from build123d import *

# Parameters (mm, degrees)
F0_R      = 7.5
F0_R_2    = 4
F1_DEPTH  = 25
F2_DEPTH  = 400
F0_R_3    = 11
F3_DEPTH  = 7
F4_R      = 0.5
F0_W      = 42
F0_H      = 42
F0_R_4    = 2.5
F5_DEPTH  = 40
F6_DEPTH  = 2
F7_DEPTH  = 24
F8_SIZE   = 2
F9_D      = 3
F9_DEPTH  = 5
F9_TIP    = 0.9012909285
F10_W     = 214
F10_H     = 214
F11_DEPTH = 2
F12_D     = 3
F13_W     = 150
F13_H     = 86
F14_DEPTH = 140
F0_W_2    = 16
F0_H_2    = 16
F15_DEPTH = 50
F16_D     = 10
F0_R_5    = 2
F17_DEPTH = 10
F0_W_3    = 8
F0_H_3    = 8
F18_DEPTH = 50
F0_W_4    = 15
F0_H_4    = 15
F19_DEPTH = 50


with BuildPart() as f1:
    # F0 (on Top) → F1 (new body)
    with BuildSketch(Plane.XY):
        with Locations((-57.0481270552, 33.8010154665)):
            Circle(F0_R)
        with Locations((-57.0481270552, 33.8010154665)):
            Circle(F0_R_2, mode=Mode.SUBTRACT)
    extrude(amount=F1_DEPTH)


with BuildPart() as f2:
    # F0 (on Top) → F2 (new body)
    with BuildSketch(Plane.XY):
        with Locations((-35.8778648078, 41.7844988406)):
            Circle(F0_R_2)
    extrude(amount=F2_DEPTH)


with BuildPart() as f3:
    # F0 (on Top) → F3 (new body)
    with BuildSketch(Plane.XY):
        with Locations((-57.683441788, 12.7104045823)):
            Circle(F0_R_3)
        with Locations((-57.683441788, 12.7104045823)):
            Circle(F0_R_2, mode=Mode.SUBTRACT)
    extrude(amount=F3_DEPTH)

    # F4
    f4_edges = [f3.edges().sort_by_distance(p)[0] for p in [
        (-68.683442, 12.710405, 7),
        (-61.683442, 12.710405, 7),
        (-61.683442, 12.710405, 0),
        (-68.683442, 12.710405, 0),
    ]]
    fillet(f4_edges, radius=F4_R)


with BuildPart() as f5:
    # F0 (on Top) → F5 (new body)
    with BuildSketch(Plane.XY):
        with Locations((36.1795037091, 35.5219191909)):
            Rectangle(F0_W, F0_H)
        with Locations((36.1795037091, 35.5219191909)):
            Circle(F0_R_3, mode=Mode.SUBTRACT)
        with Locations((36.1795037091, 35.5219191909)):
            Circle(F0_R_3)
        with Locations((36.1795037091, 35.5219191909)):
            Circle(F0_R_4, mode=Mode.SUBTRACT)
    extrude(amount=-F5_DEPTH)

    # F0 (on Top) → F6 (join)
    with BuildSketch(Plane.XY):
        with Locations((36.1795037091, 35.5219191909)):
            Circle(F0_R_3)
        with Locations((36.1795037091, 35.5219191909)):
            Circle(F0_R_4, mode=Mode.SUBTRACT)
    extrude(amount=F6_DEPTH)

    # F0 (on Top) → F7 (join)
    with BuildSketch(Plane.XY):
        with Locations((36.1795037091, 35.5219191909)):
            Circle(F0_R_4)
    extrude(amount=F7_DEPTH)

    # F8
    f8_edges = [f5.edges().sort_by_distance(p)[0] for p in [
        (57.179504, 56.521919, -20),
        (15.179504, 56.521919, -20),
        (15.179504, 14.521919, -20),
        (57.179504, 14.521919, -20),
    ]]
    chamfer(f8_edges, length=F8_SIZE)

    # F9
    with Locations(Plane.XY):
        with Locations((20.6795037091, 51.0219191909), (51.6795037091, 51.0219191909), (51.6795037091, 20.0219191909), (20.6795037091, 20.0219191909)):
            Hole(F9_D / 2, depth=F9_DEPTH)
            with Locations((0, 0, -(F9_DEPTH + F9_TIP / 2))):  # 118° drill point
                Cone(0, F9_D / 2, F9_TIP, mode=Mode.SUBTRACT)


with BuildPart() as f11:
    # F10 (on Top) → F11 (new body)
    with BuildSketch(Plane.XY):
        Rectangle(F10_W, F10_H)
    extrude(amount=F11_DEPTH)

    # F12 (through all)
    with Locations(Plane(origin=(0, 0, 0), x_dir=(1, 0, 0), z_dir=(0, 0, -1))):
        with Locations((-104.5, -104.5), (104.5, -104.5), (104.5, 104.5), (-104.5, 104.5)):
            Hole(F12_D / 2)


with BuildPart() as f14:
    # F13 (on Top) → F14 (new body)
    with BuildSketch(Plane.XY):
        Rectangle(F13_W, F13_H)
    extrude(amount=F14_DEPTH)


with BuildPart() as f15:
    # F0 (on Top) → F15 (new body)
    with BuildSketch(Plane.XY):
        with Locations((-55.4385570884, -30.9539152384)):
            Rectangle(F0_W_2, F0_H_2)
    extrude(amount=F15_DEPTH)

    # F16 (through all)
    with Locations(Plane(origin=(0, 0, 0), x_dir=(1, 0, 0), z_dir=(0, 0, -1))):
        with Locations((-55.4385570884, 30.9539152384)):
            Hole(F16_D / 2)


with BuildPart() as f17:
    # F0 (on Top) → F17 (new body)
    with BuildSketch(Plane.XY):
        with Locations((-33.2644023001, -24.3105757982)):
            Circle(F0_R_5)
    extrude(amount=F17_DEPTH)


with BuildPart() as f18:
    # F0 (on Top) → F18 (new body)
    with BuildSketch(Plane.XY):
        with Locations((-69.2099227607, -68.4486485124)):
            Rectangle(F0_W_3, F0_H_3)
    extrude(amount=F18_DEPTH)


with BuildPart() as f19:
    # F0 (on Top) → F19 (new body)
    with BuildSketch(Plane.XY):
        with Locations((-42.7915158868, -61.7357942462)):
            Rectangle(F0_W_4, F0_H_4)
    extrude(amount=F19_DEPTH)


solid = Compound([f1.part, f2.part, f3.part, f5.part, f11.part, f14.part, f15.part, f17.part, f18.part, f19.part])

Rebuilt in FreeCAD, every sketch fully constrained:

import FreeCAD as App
import Part
import Sketcher
from FreeCAD import Vector


def edges_at(feature, points):
    """Names of the edges that pass closest to the given points."""
    edges = feature.Shape.Edges
    near = lambda p: min(range(len(edges)), key=lambda i: edges[i].distToShape(Part.Vertex(*p))[0])
    return sorted({f"Edge{near(p) + 1}" for p in points})

doc = App.newDocument("Part")
body = doc.addObject("PartDesign::Body", "Body")

# Sketch on XY plane
sketch1 = doc.addObject("Sketcher::SketchObject", "Sketch")
body.addObject(sketch1)
sketch1.AttachmentSupport = (doc.XY_Plane, [""])
sketch1.MapMode = "FlatFace"
sketch1.addGeometry([
    Part.Circle(Vector(-57.048127, 33.801015, 0), Vector(0, 0, 1), 7.5),
    Part.Circle(Vector(-57.048127, 33.801015, 0), Vector(0, 0, 1), 4),
], False)
sketch1.addConstraint([
    Sketcher.Constraint("Coincident", 1, 3, 0, 3),
    Sketcher.Constraint("Diameter", 0, 15.0),
    Sketcher.Constraint("Diameter", 1, 8.0),
    Sketcher.Constraint("DistanceX", 0, 3, -1, 1, 57.048127),
    Sketcher.Constraint("DistanceY", -1, 1, 0, 3, 33.801015),
])
pad1 = doc.addObject("PartDesign::Pad", "Pad")
body.addObject(pad1)
pad1.Profile = sketch1
pad1.Length = 25
body2 = doc.addObject("PartDesign::Body", "Body001")

# Sketch on XY plane
sketch2 = doc.addObject("Sketcher::SketchObject", "Sketch001")
body2.addObject(sketch2)
sketch2.AttachmentSupport = (doc.getObject("XY_Plane001"), [""])
sketch2.MapMode = "FlatFace"
sketch2.addGeometry(Part.Circle(Vector(-35.877865, 41.784499, 0), Vector(0, 0, 1), 4), False)
sketch2.addConstraint([
    Sketcher.Constraint("Diameter", 0, 8.0),
    Sketcher.Constraint("DistanceY", -1, 1, 0, 3, 41.784499),
    Sketcher.Constraint("DistanceX", 0, 3, -1, 1, 35.877865),
])
pad2 = doc.addObject("PartDesign::Pad", "Pad001")
body2.addObject(pad2)
pad2.Profile = sketch2
pad2.Length = 400
body3 = doc.addObject("PartDesign::Body", "Body002")

# Sketch on XY plane
sketch3 = doc.addObject("Sketcher::SketchObject", "Sketch002")
body3.addObject(sketch3)
sketch3.AttachmentSupport = (doc.getObject("XY_Plane002"), [""])
sketch3.MapMode = "FlatFace"
sketch3.addGeometry([
    Part.Circle(Vector(-57.683442, 12.710405, 0), Vector(0, 0, 1), 11),
    Part.Circle(Vector(-57.683442, 12.710405, 0), Vector(0, 0, 1), 4),
], False)
sketch3.addConstraint([
    Sketcher.Constraint("Coincident", 1, 3, 0, 3),
    Sketcher.Constraint("Diameter", 0, 22.0),
    Sketcher.Constraint("Diameter", 1, 8.0),
    Sketcher.Constraint("DistanceX", 0, 3, -1, 1, 57.683442),
    Sketcher.Constraint("DistanceY", -1, 1, 0, 3, 12.710405),
])
pad3 = doc.addObject("PartDesign::Pad", "Pad002")
body3.addObject(pad3)
pad3.Profile = sketch3
pad3.Length = 7
doc.recompute()

fillet = doc.addObject("PartDesign::Fillet", "Fillet")
body3.addObject(fillet)
fillet.Base = (pad3, edges_at(pad3, [
    (-68.683, 12.71, 7),
    (-61.683, 12.71, 7),
    (-61.683, 12.71, 0),
    (-68.683, 12.71, 0),
]))
fillet.Radius = 0.5
body4 = doc.addObject("PartDesign::Body", "Body003")

# Sketch on XY plane
sketch4 = doc.addObject("Sketcher::SketchObject", "Sketch003")
body4.addObject(sketch4)
sketch4.AttachmentSupport = (doc.getObject("XY_Plane003"), [""])
sketch4.MapMode = "FlatFace"
sketch4.addGeometry([
    Part.LineSegment(Vector(15.179504, 56.521919, 0), Vector(15.179504, 14.521919, 0)),  # 0
    Part.LineSegment(Vector(15.179504, 14.521919, 0), Vector(57.179504, 14.521919, 0)),  # 1
    Part.LineSegment(Vector(57.179504, 14.521919, 0), Vector(57.179504, 56.521919, 0)),  # 2
    Part.LineSegment(Vector(57.179504, 56.521919, 0), Vector(15.179504, 56.521919, 0)),  # 3
    Part.Circle(Vector(36.179504, 35.521919, 0), Vector(0, 0, 1), 2.5),  # 4
], False)
sketch4.addConstraint([
    Sketcher.Constraint("Coincident", 0, 2, 1, 1),
    Sketcher.Constraint("Coincident", 1, 2, 2, 1),
    Sketcher.Constraint("Coincident", 2, 2, 3, 1),
    Sketcher.Constraint("Coincident", 3, 2, 0, 1),
    Sketcher.Constraint("Vertical", 0),
    Sketcher.Constraint("Horizontal", 1),
    Sketcher.Constraint("Vertical", 2),
    Sketcher.Constraint("Horizontal", 3),
    Sketcher.Constraint("Equal", 3, 0),
    Sketcher.Constraint("Diameter", 4, 5.0),
    Sketcher.Constraint("DistanceX", 1, 1, 1, 2, 42.0),
    Sketcher.Constraint("DistanceX", 0, 2, 4, 3, 21.0),
    Sketcher.Constraint("DistanceY", 0, 2, 4, 3, 21.0),
    Sketcher.Constraint("DistanceY", -1, 1, 4, 3, 35.521919),
    Sketcher.Constraint("DistanceX", -1, 1, 4, 3, 36.179504),
])
pad4 = doc.addObject("PartDesign::Pad", "Pad003")
body4.addObject(pad4)
pad4.Profile = sketch4
pad4.Length = 40
pad4.Reversed = True

# Sketch on XY plane
sketch5 = doc.addObject("Sketcher::SketchObject", "Sketch004")
body4.addObject(sketch5)
sketch5.AttachmentSupport = (doc.getObject("XY_Plane003"), [""])
sketch5.MapMode = "FlatFace"
sketch5.addGeometry([
    Part.Circle(Vector(36.179504, 35.521919, 0), Vector(0, 0, 1), 11),
    Part.Circle(Vector(36.179504, 35.521919, 0), Vector(0, 0, 1), 2.5),
], False)
sketch5.addConstraint([
    Sketcher.Constraint("Coincident", 1, 3, 0, 3),
    Sketcher.Constraint("Diameter", 0, 22.0),
    Sketcher.Constraint("Diameter", 1, 5.0),
    Sketcher.Constraint("DistanceY", -1, 1, 0, 3, 35.521919),
    Sketcher.Constraint("DistanceX", -1, 1, 0, 3, 36.179504),
])
pad5 = doc.addObject("PartDesign::Pad", "Pad004")
body4.addObject(pad5)
pad5.Profile = sketch5
pad5.Length = 2

# Sketch on XY plane
sketch6 = doc.addObject("Sketcher::SketchObject", "Sketch005")
body4.addObject(sketch6)
sketch6.AttachmentSupport = (doc.getObject("XY_Plane003"), [""])
sketch6.MapMode = "FlatFace"
sketch6.addGeometry(Part.Circle(Vector(36.179504, 35.521919, 0), Vector(0, 0, 1), 2.5), False)
sketch6.addConstraint([
    Sketcher.Constraint("Diameter", 0, 5.0),
    Sketcher.Constraint("DistanceY", -1, 1, 0, 3, 35.521919),
    Sketcher.Constraint("DistanceX", -1, 1, 0, 3, 36.179504),
])
pad6 = doc.addObject("PartDesign::Pad", "Pad005")
body4.addObject(pad6)
pad6.Profile = sketch6
pad6.Length = 24
doc.recompute()

chamfer = doc.addObject("PartDesign::Chamfer", "Chamfer")
body4.addObject(chamfer)
chamfer.Base = (pad6, edges_at(pad6, [
    (57.18, 56.522, -20),
    (15.18, 56.522, -20),
    (15.18, 14.522, -20),
    (57.18, 14.522, -20),
]))
chamfer.Size = 2

# Sketch on XY plane
sketch7 = doc.addObject("Sketcher::SketchObject", "Sketch006")
body4.addObject(sketch7)
sketch7.AttachmentSupport = (doc.getObject("XY_Plane003"), [""])
sketch7.MapMode = "FlatFace"
sketch7.addGeometry([
    Part.Circle(Vector(20.679504, 51.021919, 0), Vector(0, 0, 1), 1.5),
    Part.Circle(Vector(51.679504, 51.021919, 0), Vector(0, 0, 1), 1.5),
    Part.Circle(Vector(51.679504, 20.021919, 0), Vector(0, 0, 1), 1.5),
    Part.Circle(Vector(20.679504, 20.021919, 0), Vector(0, 0, 1), 1.5),
], False)
sketch7.addConstraint([
    Sketcher.Constraint("Equal", 0, 1),
    Sketcher.Constraint("Equal", 1, 2),
    Sketcher.Constraint("Equal", 2, 3),
    Sketcher.Constraint("Horizontal", 0, 3, 1, 3),
    Sketcher.Constraint("Horizontal", 2, 3, 3, 3),
    Sketcher.Constraint("Vertical", 1, 3, 2, 3),
    Sketcher.Constraint("Vertical", 0, 3, 3, 3),
    Sketcher.Constraint("Diameter", 0, 3.0),
    Sketcher.Constraint("DistanceX", 0, 3, 1, 3, 31.0),
    Sketcher.Constraint("DistanceY", 2, 3, 1, 3, 31.0),
    Sketcher.Constraint("DistanceY", -1, 1, 0, 3, 51.021919),
    Sketcher.Constraint("DistanceX", -1, 1, 0, 3, 20.679504),
])
doc.recompute()
hole = doc.addObject("PartDesign::Hole", "Hole")
body4.addObject(hole)
hole.Profile = sketch7
hole.ThreadType = "None"
hole.Diameter = 3
hole.DepthType = "Dimension"
hole.Depth = 5
hole.DrillPoint = "Angled"
hole.DrillPointAngle = 118
body5 = doc.addObject("PartDesign::Body", "Body004")

# Sketch on XY plane
sketch8 = doc.addObject("Sketcher::SketchObject", "Sketch007")
body5.addObject(sketch8)
sketch8.AttachmentSupport = (doc.getObject("XY_Plane004"), [""])
sketch8.MapMode = "FlatFace"
sketch8.addGeometry([
    Part.LineSegment(Vector(-107, 107, 0), Vector(-107, -107, 0)),
    Part.LineSegment(Vector(-107, -107, 0), Vector(107, -107, 0)),
    Part.LineSegment(Vector(107, -107, 0), Vector(107, 107, 0)),
    Part.LineSegment(Vector(107, 107, 0), Vector(-107, 107, 0)),
], False)
sketch8.addConstraint([
    Sketcher.Constraint("Coincident", 0, 2, 1, 1),
    Sketcher.Constraint("Coincident", 1, 2, 2, 1),
    Sketcher.Constraint("Coincident", 2, 2, 3, 1),
    Sketcher.Constraint("Coincident", 3, 2, 0, 1),
    Sketcher.Constraint("Vertical", 0),
    Sketcher.Constraint("Horizontal", 1),
    Sketcher.Constraint("Vertical", 2),
    Sketcher.Constraint("Horizontal", 3),
    Sketcher.Constraint("Symmetric", 0, 2, 2, 2, -1, 1),
    Sketcher.Constraint("Equal", 3, 0),
    Sketcher.Constraint("DistanceX", 1, 1, 1, 2, 214.0),
])
pad7 = doc.addObject("PartDesign::Pad", "Pad006")
body5.addObject(pad7)
pad7.Profile = sketch8
pad7.Length = 2

# Sketch on XY plane
sketch9 = doc.addObject("Sketcher::SketchObject", "Sketch008")
body5.addObject(sketch9)
sketch9.AttachmentSupport = (doc.getObject("XY_Plane004"), [""])
sketch9.MapMode = "FlatFace"
sketch9.addGeometry([
    Part.Circle(Vector(-104.5, 104.5, 0), Vector(0, 0, 1), 1.5),
    Part.Circle(Vector(104.5, 104.5, 0), Vector(0, 0, 1), 1.5),
    Part.Circle(Vector(104.5, -104.5, 0), Vector(0, 0, 1), 1.5),
    Part.Circle(Vector(-104.5, -104.5, 0), Vector(0, 0, 1), 1.5),
], False)
sketch9.addConstraint([
    Sketcher.Constraint("Equal", 0, 1),
    Sketcher.Constraint("Equal", 1, 2),
    Sketcher.Constraint("Equal", 2, 3),
    Sketcher.Constraint("Symmetric", 0, 3, 2, 3, -1, 1),
    Sketcher.Constraint("Symmetric", 1, 3, 3, 3, -1, 1),
    Sketcher.Constraint("Symmetric", 0, 3, 1, 3, -2),
    Sketcher.Constraint("Diameter", 0, 3.0),
    Sketcher.Constraint("DistanceX", 0, 3, 1, 3, 209.0),
    Sketcher.Constraint("DistanceY", 2, 3, 1, 3, 209.0),
])
doc.recompute()
hole2 = doc.addObject("PartDesign::Hole", "Hole001")
body5.addObject(hole2)
hole2.Profile = sketch9
hole2.ThreadType = "None"
hole2.Diameter = 3
hole2.DepthType = "ThroughAll"
hole2.Reversed = True
body6 = doc.addObject("PartDesign::Body", "Body005")

# Sketch on XY plane
sketch10 = doc.addObject("Sketcher::SketchObject", "Sketch009")
body6.addObject(sketch10)
sketch10.AttachmentSupport = (doc.getObject("XY_Plane005"), [""])
sketch10.MapMode = "FlatFace"
sketch10.addGeometry([
    Part.LineSegment(Vector(-75, 43, 0), Vector(-75, -43, 0)),
    Part.LineSegment(Vector(-75, -43, 0), Vector(75, -43, 0)),
    Part.LineSegment(Vector(75, -43, 0), Vector(75, 43, 0)),
    Part.LineSegment(Vector(75, 43, 0), Vector(-75, 43, 0)),
], False)
sketch10.addConstraint([
    Sketcher.Constraint("Coincident", 0, 2, 1, 1),
    Sketcher.Constraint("Coincident", 1, 2, 2, 1),
    Sketcher.Constraint("Coincident", 2, 2, 3, 1),
    Sketcher.Constraint("Coincident", 3, 2, 0, 1),
    Sketcher.Constraint("Vertical", 0),
    Sketcher.Constraint("Horizontal", 1),
    Sketcher.Constraint("Vertical", 2),
    Sketcher.Constraint("Horizontal", 3),
    Sketcher.Constraint("Symmetric", 0, 2, 2, 2, -1, 1),
    Sketcher.Constraint("DistanceX", 1, 1, 1, 2, 150.0),
    Sketcher.Constraint("DistanceY", 0, 2, 0, 1, 86.0),
])
pad8 = doc.addObject("PartDesign::Pad", "Pad007")
body6.addObject(pad8)
pad8.Profile = sketch10
pad8.Length = 140
body7 = doc.addObject("PartDesign::Body", "Body006")

# Sketch on XY plane
sketch11 = doc.addObject("Sketcher::SketchObject", "Sketch010")
body7.addObject(sketch11)
sketch11.AttachmentSupport = (doc.getObject("XY_Plane006"), [""])
sketch11.MapMode = "FlatFace"
sketch11.addGeometry([
    Part.LineSegment(Vector(-63.438557, -22.953915, 0), Vector(-63.438557, -38.953915, 0)),
    Part.LineSegment(Vector(-63.438557, -38.953915, 0), Vector(-47.438557, -38.953915, 0)),
    Part.LineSegment(Vector(-47.438557, -38.953915, 0), Vector(-47.438557, -22.953915, 0)),
    Part.LineSegment(Vector(-47.438557, -22.953915, 0), Vector(-63.438557, -22.953915, 0)),
], False)
sketch11.addConstraint([
    Sketcher.Constraint("Coincident", 0, 2, 1, 1),
    Sketcher.Constraint("Coincident", 1, 2, 2, 1),
    Sketcher.Constraint("Coincident", 2, 2, 3, 1),
    Sketcher.Constraint("Coincident", 3, 2, 0, 1),
    Sketcher.Constraint("Vertical", 0),
    Sketcher.Constraint("Horizontal", 1),
    Sketcher.Constraint("Vertical", 2),
    Sketcher.Constraint("Horizontal", 3),
    Sketcher.Constraint("Equal", 3, 0),
    Sketcher.Constraint("DistanceX", 1, 1, 1, 2, 16.0),
    Sketcher.Constraint("DistanceX", 0, 2, -1, 1, 63.438557),
    Sketcher.Constraint("DistanceY", 0, 2, -1, 1, 38.953915),
])
pad9 = doc.addObject("PartDesign::Pad", "Pad008")
body7.addObject(pad9)
pad9.Profile = sketch11
pad9.Length = 50

# Sketch on XY plane
sketch12 = doc.addObject("Sketcher::SketchObject", "Sketch011")
body7.addObject(sketch12)
sketch12.AttachmentSupport = (doc.getObject("XY_Plane006"), [""])
sketch12.MapMode = "FlatFace"
sketch12.addGeometry(Part.Circle(Vector(-55.438557, -30.953915, 0), Vector(0, 0, 1), 5), False)
sketch12.addConstraint([
    Sketcher.Constraint("Diameter", 0, 10.0),
    Sketcher.Constraint("DistanceX", 0, 3, -1, 1, 55.438557),
    Sketcher.Constraint("DistanceY", 0, 3, -1, 1, 30.953915),
])
doc.recompute()
hole3 = doc.addObject("PartDesign::Hole", "Hole002")
body7.addObject(hole3)
hole3.Profile = sketch12
hole3.ThreadType = "None"
hole3.Diameter = 10
hole3.DepthType = "ThroughAll"
hole3.Reversed = True
body8 = doc.addObject("PartDesign::Body", "Body007")

# Sketch on XY plane
sketch13 = doc.addObject("Sketcher::SketchObject", "Sketch012")
body8.addObject(sketch13)
sketch13.AttachmentSupport = (doc.getObject("XY_Plane007"), [""])
sketch13.MapMode = "FlatFace"
sketch13.addGeometry(Part.Circle(Vector(-33.264402, -24.310576, 0), Vector(0, 0, 1), 2), False)
sketch13.addConstraint([
    Sketcher.Constraint("Diameter", 0, 4.0),
    Sketcher.Constraint("DistanceX", 0, 3, -1, 1, 33.264402),
    Sketcher.Constraint("DistanceY", 0, 3, -1, 1, 24.310576),
])
pad10 = doc.addObject("PartDesign::Pad", "Pad009")
body8.addObject(pad10)
pad10.Profile = sketch13
pad10.Length = 10
body9 = doc.addObject("PartDesign::Body", "Body008")

# Sketch on XY plane
sketch14 = doc.addObject("Sketcher::SketchObject", "Sketch013")
body9.addObject(sketch14)
sketch14.AttachmentSupport = (doc.getObject("XY_Plane008"), [""])
sketch14.MapMode = "FlatFace"
sketch14.addGeometry([
    Part.LineSegment(Vector(-73.209923, -64.448649, 0), Vector(-73.209923, -72.448649, 0)),
    Part.LineSegment(Vector(-73.209923, -72.448649, 0), Vector(-65.209923, -72.448649, 0)),
    Part.LineSegment(Vector(-65.209923, -72.448649, 0), Vector(-65.209923, -64.448649, 0)),
    Part.LineSegment(Vector(-65.209923, -64.448649, 0), Vector(-73.209923, -64.448649, 0)),
], False)
sketch14.addConstraint([
    Sketcher.Constraint("Coincident", 0, 2, 1, 1),
    Sketcher.Constraint("Coincident", 1, 2, 2, 1),
    Sketcher.Constraint("Coincident", 2, 2, 3, 1),
    Sketcher.Constraint("Coincident", 3, 2, 0, 1),
    Sketcher.Constraint("Vertical", 0),
    Sketcher.Constraint("Horizontal", 1),
    Sketcher.Constraint("Vertical", 2),
    Sketcher.Constraint("Horizontal", 3),
    Sketcher.Constraint("Equal", 3, 0),
    Sketcher.Constraint("DistanceX", 1, 1, 1, 2, 8.0),
    Sketcher.Constraint("DistanceY", 0, 2, -1, 1, 72.448649),
    Sketcher.Constraint("DistanceX", 0, 2, -1, 1, 73.209923),
])
pad11 = doc.addObject("PartDesign::Pad", "Pad010")
body9.addObject(pad11)
pad11.Profile = sketch14
pad11.Length = 50
body10 = doc.addObject("PartDesign::Body", "Body009")

# Sketch on XY plane
sketch15 = doc.addObject("Sketcher::SketchObject", "Sketch014")
body10.addObject(sketch15)
sketch15.AttachmentSupport = (doc.getObject("XY_Plane009"), [""])
sketch15.MapMode = "FlatFace"
sketch15.addGeometry([
    Part.LineSegment(Vector(-50.291516, -54.235794, 0), Vector(-50.291516, -69.235794, 0)),
    Part.LineSegment(Vector(-50.291516, -69.235794, 0), Vector(-35.291516, -69.235794, 0)),
    Part.LineSegment(Vector(-35.291516, -69.235794, 0), Vector(-35.291516, -54.235794, 0)),
    Part.LineSegment(Vector(-35.291516, -54.235794, 0), Vector(-50.291516, -54.235794, 0)),
], False)
sketch15.addConstraint([
    Sketcher.Constraint("Coincident", 0, 2, 1, 1),
    Sketcher.Constraint("Coincident", 1, 2, 2, 1),
    Sketcher.Constraint("Coincident", 2, 2, 3, 1),
    Sketcher.Constraint("Coincident", 3, 2, 0, 1),
    Sketcher.Constraint("Vertical", 0),
    Sketcher.Constraint("Horizontal", 1),
    Sketcher.Constraint("Vertical", 2),
    Sketcher.Constraint("Horizontal", 3),
    Sketcher.Constraint("Equal", 3, 0),
    Sketcher.Constraint("DistanceX", 1, 1, 1, 2, 15.0),
    Sketcher.Constraint("DistanceX", 0, 2, -1, 1, 50.291516),
    Sketcher.Constraint("DistanceY", 0, 2, -1, 1, 69.235794),
])
pad12 = doc.addObject("PartDesign::Pad", "Pad011")
body10.addObject(pad12)
pad12.Profile = sketch15
pad12.Length = 50

doc.recompute()
